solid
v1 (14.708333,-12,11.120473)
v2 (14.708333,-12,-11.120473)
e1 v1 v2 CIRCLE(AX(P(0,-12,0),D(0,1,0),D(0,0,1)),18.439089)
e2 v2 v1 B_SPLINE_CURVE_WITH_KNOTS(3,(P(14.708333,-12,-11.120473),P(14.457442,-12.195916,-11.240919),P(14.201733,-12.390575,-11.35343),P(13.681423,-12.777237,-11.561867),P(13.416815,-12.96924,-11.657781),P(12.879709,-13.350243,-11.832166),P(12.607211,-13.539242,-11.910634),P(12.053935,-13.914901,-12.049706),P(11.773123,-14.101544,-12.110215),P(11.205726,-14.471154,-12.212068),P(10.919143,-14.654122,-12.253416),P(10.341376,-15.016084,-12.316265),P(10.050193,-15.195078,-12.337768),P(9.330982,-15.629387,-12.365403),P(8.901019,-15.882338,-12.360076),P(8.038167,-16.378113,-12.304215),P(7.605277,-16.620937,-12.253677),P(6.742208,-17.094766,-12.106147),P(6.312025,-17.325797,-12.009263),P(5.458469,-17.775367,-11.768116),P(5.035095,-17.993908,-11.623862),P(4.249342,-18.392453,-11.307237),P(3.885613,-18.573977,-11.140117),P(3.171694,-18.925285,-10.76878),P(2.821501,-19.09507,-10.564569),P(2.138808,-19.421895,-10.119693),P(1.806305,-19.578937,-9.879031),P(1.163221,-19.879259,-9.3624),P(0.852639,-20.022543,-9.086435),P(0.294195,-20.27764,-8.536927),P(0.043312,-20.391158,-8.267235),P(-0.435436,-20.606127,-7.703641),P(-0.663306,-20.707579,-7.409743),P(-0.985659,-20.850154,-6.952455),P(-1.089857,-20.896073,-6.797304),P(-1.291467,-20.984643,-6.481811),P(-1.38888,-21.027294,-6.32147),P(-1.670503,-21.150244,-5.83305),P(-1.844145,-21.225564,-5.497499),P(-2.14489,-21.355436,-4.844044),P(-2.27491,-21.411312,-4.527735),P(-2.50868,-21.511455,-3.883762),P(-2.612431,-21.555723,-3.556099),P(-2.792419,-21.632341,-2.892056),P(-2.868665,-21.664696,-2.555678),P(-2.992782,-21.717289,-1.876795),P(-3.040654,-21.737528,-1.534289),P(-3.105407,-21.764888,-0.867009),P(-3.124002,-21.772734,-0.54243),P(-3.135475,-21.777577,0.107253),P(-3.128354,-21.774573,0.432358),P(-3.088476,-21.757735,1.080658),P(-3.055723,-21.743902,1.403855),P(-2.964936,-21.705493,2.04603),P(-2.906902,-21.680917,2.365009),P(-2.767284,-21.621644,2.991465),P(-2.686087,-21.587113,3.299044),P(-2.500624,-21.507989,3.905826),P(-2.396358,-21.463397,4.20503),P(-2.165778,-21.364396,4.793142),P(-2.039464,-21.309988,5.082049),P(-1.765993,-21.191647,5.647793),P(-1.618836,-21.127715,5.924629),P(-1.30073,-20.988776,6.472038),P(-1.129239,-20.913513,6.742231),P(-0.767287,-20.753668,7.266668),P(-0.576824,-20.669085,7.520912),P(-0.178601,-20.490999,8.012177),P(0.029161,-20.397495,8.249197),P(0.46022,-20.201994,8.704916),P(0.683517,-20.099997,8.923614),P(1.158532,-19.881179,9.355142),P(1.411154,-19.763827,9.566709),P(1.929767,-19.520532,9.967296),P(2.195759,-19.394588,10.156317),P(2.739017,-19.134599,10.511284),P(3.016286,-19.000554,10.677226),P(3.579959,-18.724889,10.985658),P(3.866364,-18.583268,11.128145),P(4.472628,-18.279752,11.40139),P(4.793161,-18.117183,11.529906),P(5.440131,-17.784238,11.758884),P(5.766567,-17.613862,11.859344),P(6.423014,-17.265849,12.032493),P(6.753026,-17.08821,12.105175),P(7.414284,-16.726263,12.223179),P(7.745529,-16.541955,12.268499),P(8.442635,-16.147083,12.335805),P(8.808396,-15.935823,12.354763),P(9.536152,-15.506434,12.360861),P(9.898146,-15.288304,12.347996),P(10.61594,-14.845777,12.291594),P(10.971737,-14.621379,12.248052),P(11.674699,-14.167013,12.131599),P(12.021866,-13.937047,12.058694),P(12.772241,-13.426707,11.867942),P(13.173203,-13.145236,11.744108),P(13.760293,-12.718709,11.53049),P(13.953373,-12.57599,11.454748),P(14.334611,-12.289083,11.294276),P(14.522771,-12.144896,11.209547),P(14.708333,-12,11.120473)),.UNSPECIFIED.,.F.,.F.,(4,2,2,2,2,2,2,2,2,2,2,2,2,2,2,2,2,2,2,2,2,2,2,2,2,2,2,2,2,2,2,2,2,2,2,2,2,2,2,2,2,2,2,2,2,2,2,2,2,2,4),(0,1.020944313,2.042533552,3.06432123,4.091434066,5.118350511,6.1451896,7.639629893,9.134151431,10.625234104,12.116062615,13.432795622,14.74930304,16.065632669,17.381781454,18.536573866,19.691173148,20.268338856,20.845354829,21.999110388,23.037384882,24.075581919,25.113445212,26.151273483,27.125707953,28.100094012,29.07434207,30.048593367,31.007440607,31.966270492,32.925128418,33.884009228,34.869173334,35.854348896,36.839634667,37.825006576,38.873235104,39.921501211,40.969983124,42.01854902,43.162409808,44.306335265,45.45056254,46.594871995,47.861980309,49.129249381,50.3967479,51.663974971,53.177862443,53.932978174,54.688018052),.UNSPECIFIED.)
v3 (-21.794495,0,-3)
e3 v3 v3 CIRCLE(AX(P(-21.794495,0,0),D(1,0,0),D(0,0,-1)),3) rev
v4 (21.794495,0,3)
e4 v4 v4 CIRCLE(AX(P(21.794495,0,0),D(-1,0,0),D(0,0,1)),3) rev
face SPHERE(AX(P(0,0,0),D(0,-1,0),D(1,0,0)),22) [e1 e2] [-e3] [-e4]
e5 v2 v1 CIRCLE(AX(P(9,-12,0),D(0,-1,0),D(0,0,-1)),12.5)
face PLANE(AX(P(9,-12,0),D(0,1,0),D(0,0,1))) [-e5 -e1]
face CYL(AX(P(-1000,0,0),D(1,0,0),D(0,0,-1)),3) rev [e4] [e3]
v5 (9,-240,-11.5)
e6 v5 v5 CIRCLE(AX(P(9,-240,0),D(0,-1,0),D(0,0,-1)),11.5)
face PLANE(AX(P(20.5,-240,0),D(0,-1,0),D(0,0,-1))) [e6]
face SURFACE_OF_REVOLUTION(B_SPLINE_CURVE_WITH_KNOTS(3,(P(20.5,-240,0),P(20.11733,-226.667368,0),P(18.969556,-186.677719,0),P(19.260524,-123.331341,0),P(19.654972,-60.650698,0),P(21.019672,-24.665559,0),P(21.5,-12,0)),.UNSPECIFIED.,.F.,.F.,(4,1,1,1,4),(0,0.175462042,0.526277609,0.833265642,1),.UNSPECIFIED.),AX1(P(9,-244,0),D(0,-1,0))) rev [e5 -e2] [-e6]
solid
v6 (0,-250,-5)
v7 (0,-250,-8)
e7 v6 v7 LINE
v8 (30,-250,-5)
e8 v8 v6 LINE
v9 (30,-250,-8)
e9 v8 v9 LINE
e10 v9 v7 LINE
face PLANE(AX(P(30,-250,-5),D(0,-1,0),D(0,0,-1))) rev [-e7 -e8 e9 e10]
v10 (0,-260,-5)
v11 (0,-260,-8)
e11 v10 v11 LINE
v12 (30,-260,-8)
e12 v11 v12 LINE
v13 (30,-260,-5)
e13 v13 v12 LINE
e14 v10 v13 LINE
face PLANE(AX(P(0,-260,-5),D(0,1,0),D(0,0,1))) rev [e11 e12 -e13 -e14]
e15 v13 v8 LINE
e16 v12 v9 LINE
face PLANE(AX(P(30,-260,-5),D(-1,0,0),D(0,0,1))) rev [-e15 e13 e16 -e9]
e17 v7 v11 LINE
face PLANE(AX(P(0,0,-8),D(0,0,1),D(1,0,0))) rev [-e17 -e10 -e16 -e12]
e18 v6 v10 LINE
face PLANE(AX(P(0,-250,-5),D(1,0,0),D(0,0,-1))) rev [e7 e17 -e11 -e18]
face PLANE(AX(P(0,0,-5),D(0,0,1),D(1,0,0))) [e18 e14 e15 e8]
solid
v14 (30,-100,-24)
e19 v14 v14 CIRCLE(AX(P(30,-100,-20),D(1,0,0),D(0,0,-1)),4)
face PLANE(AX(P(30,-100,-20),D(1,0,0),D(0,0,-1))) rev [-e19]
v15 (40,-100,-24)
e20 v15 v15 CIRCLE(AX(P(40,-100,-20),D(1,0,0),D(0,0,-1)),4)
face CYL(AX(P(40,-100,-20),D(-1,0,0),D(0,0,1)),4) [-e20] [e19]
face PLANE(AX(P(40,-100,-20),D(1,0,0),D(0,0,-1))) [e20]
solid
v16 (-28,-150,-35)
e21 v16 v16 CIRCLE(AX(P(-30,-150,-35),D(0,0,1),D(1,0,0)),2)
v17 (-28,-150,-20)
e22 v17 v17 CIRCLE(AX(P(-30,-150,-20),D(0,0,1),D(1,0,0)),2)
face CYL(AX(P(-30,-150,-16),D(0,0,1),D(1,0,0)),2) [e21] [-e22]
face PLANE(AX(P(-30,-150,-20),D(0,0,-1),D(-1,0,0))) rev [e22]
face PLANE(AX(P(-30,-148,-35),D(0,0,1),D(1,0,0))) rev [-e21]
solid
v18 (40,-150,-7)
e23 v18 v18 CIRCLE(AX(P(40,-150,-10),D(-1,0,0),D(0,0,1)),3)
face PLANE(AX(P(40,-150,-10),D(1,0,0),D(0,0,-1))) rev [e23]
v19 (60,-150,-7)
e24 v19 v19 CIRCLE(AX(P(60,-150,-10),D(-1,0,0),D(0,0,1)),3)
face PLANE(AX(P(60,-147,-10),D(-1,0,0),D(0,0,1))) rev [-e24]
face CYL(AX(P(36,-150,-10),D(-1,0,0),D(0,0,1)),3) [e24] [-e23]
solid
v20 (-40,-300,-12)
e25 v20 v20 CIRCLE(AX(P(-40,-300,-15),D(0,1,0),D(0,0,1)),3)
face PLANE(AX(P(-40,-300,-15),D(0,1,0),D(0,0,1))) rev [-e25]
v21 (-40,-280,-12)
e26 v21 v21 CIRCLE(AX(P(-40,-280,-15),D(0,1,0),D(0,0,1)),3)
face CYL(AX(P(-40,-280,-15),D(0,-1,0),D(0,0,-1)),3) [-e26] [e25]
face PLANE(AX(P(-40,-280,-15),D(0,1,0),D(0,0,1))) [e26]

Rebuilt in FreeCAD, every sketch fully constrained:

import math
import FreeCAD as App
import Part
import Sketcher

V = App.Vector


def add_polygon(sketch, points):
    """Adds a closed chain of lines whose ends are joined by coincident constraints."""
    first, n = sketch.GeometryCount, len(points)
    for a, b in zip(points, points[1:] + points[:1]):
        sketch.addGeometry(Part.LineSegment(App.Vector(*a, 0), App.Vector(*b, 0)), False)
    for i in range(n):
        sketch.addConstraint(Sketcher.Constraint("Coincident", first + i, 2, first + (i + 1) % n, 1))

doc = App.newDocument("Part")
body = doc.addObject("PartDesign::Body", "Body")

# Sketch on XY plane
sketch1 = body.newObject("Sketcher::SketchObject", "Sketch")
sketch1.AttachmentSupport = (doc.getObject("XY_Plane"), [""])
sketch1.MapMode = "FlatFace"
sketch1.addGeometry(Part.LineSegment(V(9, -240, 0), V(20.5, -240, 0)), False)
sketch1.addGeometry(Part.BSplineCurve([V(21.5, -12, 0), V(21.019672, -24.665559, 0), V(19.654972, -60.650698, 0), V(19.260524, -123.331341, 0), V(18.969556, -186.677719, 0), V(20.11733, -226.667368, 0), V(20.5, -240, 0)], [4, 1, 1, 1, 4], [0, 0.166734358, 0.473722391, 0.824537958, 1], False, 3, [1, 1, 1, 1, 1, 1, 1], False), False)
sketch1.addGeometry(Part.LineSegment(V(21.5, -12, 0), V(9, -12, 0)), False)
sketch1.addGeometry(Part.LineSegment(V(9, -12, 0), V(9, -240, 0)), False)
sketch1.addGeometry(Part.LineSegment(V(9, -240, 0), V(9, -12, 0)), True)  # axis
sketch1.addConstraint(Sketcher.Constraint("Block", 1))
sketch1.addConstraint(Sketcher.Constraint("Coincident", 0, 2, 1, 2))
sketch1.addConstraint(Sketcher.Constraint("Coincident", 1, 1, 2, 1))
sketch1.addConstraint(Sketcher.Constraint("Coincident", 2, 2, 3, 1))
sketch1.addConstraint(Sketcher.Constraint("Coincident", 3, 2, 0, 1))
sketch1.addConstraint(Sketcher.Constraint("Horizontal", 0))
sketch1.addConstraint(Sketcher.Constraint("Horizontal", 2))
sketch1.addConstraint(Sketcher.Constraint("Vertical", 3))
sketch1.addConstraint(Sketcher.Constraint("Vertical", 4))
sketch1.addConstraint(Sketcher.Constraint("Coincident", 4, 1, 3, 2))
sketch1.addConstraint(Sketcher.Constraint("Equal", 3, 4))
sketch1.addConstraint(Sketcher.Constraint("DistanceX", 0, 1, 0, 2, 11.5))
revolution = body.newObject("PartDesign::Revolution", "Revolution")
revolution.Profile = sketch1
revolution.ReferenceAxis = (sketch1, ["Axis0"])
revolution.Angle = 360

# Sketch on XY plane
sketch2 = body.newObject("Sketcher::SketchObject", "Sketch001")
sketch2.AttachmentSupport = (doc.getObject("XY_Plane"), [""])
sketch2.MapMode = "FlatFace"
sketch2.addGeometry(Part.LineSegment(V(0, 22, 0), V(0, -22, 0)), False)
sketch2.addGeometry(Part.ArcOfCircle(Part.Circle(V(0, 0, 0), V(0, 0, 1), 22), math.radians(-90), math.radians(90)), False)
sketch2.addConstraint(Sketcher.Constraint("Coincident", 0, 1, 1, 2))
sketch2.addConstraint(Sketcher.Constraint("Coincident", 1, 1, 0, 2))
sketch2.addConstraint(Sketcher.Constraint("Vertical", 0))
sketch2.addConstraint(Sketcher.Constraint("Coincident", 1, 3, -1, 1))
sketch2.addConstraint(Sketcher.Constraint("PointOnObject", 0, 1, -2))
sketch2.addConstraint(Sketcher.Constraint("Radius", 1, 22.0))
revolution2 = body.newObject("PartDesign::Revolution", "Revolution001")
revolution2.Profile = sketch2
revolution2.ReferenceAxis = (sketch2, ["V_Axis"])
revolution2.Angle = 360

# Sketch on YZ plane
sketch3 = body.newObject("Sketcher::SketchObject", "Sketch002")
sketch3.AttachmentSupport = (doc.getObject("YZ_Plane"), [""])
sketch3.MapMode = "FlatFace"
sketch3.addGeometry(Part.Circle(V(0, 0, 0), V(0, 0, 1), 3), False)
sketch3.addConstraint(Sketcher.Constraint("Coincident", 0, 3, -1, 1))
sketch3.addConstraint(Sketcher.Constraint("Diameter", 0, 6.0))
pocket1 = body.newObject("PartDesign::Pocket", "Pocket")
pocket1.Profile = sketch3
pocket1.Length = 2000
pocket1.Midplane = True
body2 = doc.addObject("PartDesign::Body", "Body001")

# Sketch on XY plane
sketch4 = body2.newObject("Sketcher::SketchObject", "Sketch003")
sketch4.AttachmentSupport = (doc.getObject("XY_Plane001"), [""])
sketch4.MapMode = "FlatFace"
sketch4.AttachmentOffset = App.Placement(V(0, 0, -8), App.Rotation())
add_polygon(sketch4, [(0, -250), (0, -260), (30, -260), (30, -250)])  # lines 0-3
sketch4.addConstraint(Sketcher.Constraint("Vertical", 0))
sketch4.addConstraint(Sketcher.Constraint("Horizontal", 1))
sketch4.addConstraint(Sketcher.Constraint("Vertical", 2))
sketch4.addConstraint(Sketcher.Constraint("Horizontal", 3))
sketch4.addConstraint(Sketcher.Constraint("PointOnObject", 0, 2, -2))
sketch4.addConstraint(Sketcher.Constraint("DistanceX", 1, 1, 1, 2, 30.0))
sketch4.addConstraint(Sketcher.Constraint("DistanceY", 0, 2, 0, 1, 10.0))
sketch4.addConstraint(Sketcher.Constraint("DistanceY", 0, 2, -1, 1, 260.0))
pad1 = body2.newObject("PartDesign::Pad", "Pad")
pad1.Profile = sketch4
pad1.Length = 3
body3 = doc.addObject("PartDesign::Body", "Body002")

# Sketch on YZ plane
sketch5 = body3.newObject("Sketcher::SketchObject", "Sketch004")
sketch5.AttachmentSupport = (doc.getObject("YZ_Plane002"), [""])
sketch5.MapMode = "FlatFace"
sketch5.AttachmentOffset = App.Placement(V(0, 0, 30), App.Rotation())
sketch5.addGeometry(Part.Circle(V(-100, -20, 0), V(0, 0, 1), 4), False)
sketch5.addConstraint(Sketcher.Constraint("Diameter", 0, 8.0))
sketch5.addConstraint(Sketcher.Constraint("DistanceX", 0, 3, -1, 1, 100.0))
sketch5.addConstraint(Sketcher.Constraint("DistanceY", 0, 3, -1, 1, 20.0))
pad2 = body3.newObject("PartDesign::Pad", "Pad001")
pad2.Profile = sketch5
pad2.Length = 10
body4 = doc.addObject("PartDesign::Body", "Body003")

# Sketch on XZ plane
sketch6 = body4.newObject("Sketcher::SketchObject", "Sketch005")
sketch6.AttachmentSupport = (doc.getObject("XZ_Plane003"), [""])
sketch6.MapMode = "FlatFace"
sketch6.AttachmentOffset = App.Placement(V(0, 0, 300), App.Rotation())
sketch6.addGeometry(Part.Circle(V(-40, -15, 0), V(0, 0, 1), 3), False)
sketch6.addConstraint(Sketcher.Constraint("Diameter", 0, 6.0))
sketch6.addConstraint(Sketcher.Constraint("DistanceX", 0, 3, -1, 1, 40.0))
sketch6.addConstraint(Sketcher.Constraint("DistanceY", 0, 3, -1, 1, 15.0))
pad3 = body4.newObject("PartDesign::Pad", "Pad002")
pad3.Profile = sketch6
pad3.Length = 20
pad3.Reversed = True
body5 = doc.addObject("PartDesign::Body", "Body004")

# Sketch on XY plane
sketch7 = body5.newObject("Sketcher::SketchObject", "Sketch006")
sketch7.AttachmentSupport = (doc.getObject("XY_Plane004"), [""])
sketch7.MapMode = "FlatFace"
sketch7.AttachmentOffset = App.Placement(V(0, 0, -10), App.Rotation())
add_polygon(sketch7, [(40, -147), (40, -150), (60, -150), (60, -147)])  # lines 0-3
sketch7.addGeometry(Part.LineSegment(V(40, -150, 0), V(60, -150, 0)), True)  # axis
sketch7.addConstraint(Sketcher.Constraint("Vertical", 0))
sketch7.addConstraint(Sketcher.Constraint("Horizontal", 1))
sketch7.addConstraint(Sketcher.Constraint("Vertical", 2))
sketch7.addConstraint(Sketcher.Constraint("Horizontal", 3))
sketch7.addConstraint(Sketcher.Constraint("Horizontal", 4))
sketch7.addConstraint(Sketcher.Constraint("Coincident", 4, 1, 0, 2))
sketch7.addConstraint(Sketcher.Constraint("Vertical", 2, 2, 4, 2))
sketch7.addConstraint(Sketcher.Constraint("DistanceX", 1, 1, 1, 2, 20.0))
sketch7.addConstraint(Sketcher.Constraint("DistanceY", 0, 2, 0, 1, 3.0))
sketch7.addConstraint(Sketcher.Constraint("DistanceX", -1, 1, 0, 2, 40.0))
sketch7.addConstraint(Sketcher.Constraint("DistanceY", 0, 2, -1, 1, 150.0))
revolution3 = body5.newObject("PartDesign::Revolution", "Revolution002")
revolution3.Profile = sketch7
revolution3.ReferenceAxis = (sketch7, ["Axis0"])
revolution3.Angle = 360
body6 = doc.addObject("PartDesign::Body", "Body005")

# Sketch on YZ plane
sketch8 = body6.newObject("Sketcher::SketchObject", "Sketch007")
sketch8.AttachmentSupport = (doc.getObject("YZ_Plane005"), [""])
sketch8.MapMode = "FlatFace"
sketch8.AttachmentOffset = App.Placement(V(0, 0, -30), App.Rotation())
add_polygon(sketch8, [(-148, -20), (-150, -20), (-150, -35), (-148, -35)])  # lines 0-3
sketch8.addGeometry(Part.LineSegment(V(-150, -20, 0), V(-150, -35, 0)), True)  # axis
sketch8.addConstraint(Sketcher.Constraint("Horizontal", 0))
sketch8.addConstraint(Sketcher.Constraint("Vertical", 1))
sketch8.addConstraint(Sketcher.Constraint("Horizontal", 2))
sketch8.addConstraint(Sketcher.Constraint("Vertical", 3))
sketch8.addConstraint(Sketcher.Constraint("Vertical", 4))
sketch8.addConstraint(Sketcher.Constraint("Coincident", 4, 1, 0, 2))
sketch8.addConstraint(Sketcher.Constraint("Horizontal", 2, 2, 4, 2))
sketch8.addConstraint(Sketcher.Constraint("DistanceX", 0, 2, 0, 1, 2.0))
sketch8.addConstraint(Sketcher.Constraint("DistanceY", 1, 2, 1, 1, 15.0))
sketch8.addConstraint(Sketcher.Constraint("DistanceX", 0, 2, -1, 1, 150.0))
sketch8.addConstraint(Sketcher.Constraint("DistanceY", 0, 2, -1, 1, 20.0))
revolution4 = body6.newObject("PartDesign::Revolution", "Revolution003")
revolution4.Profile = sketch8
revolution4.ReferenceAxis = (sketch8, ["Axis0"])
revolution4.Angle = 360

doc.recompute()
